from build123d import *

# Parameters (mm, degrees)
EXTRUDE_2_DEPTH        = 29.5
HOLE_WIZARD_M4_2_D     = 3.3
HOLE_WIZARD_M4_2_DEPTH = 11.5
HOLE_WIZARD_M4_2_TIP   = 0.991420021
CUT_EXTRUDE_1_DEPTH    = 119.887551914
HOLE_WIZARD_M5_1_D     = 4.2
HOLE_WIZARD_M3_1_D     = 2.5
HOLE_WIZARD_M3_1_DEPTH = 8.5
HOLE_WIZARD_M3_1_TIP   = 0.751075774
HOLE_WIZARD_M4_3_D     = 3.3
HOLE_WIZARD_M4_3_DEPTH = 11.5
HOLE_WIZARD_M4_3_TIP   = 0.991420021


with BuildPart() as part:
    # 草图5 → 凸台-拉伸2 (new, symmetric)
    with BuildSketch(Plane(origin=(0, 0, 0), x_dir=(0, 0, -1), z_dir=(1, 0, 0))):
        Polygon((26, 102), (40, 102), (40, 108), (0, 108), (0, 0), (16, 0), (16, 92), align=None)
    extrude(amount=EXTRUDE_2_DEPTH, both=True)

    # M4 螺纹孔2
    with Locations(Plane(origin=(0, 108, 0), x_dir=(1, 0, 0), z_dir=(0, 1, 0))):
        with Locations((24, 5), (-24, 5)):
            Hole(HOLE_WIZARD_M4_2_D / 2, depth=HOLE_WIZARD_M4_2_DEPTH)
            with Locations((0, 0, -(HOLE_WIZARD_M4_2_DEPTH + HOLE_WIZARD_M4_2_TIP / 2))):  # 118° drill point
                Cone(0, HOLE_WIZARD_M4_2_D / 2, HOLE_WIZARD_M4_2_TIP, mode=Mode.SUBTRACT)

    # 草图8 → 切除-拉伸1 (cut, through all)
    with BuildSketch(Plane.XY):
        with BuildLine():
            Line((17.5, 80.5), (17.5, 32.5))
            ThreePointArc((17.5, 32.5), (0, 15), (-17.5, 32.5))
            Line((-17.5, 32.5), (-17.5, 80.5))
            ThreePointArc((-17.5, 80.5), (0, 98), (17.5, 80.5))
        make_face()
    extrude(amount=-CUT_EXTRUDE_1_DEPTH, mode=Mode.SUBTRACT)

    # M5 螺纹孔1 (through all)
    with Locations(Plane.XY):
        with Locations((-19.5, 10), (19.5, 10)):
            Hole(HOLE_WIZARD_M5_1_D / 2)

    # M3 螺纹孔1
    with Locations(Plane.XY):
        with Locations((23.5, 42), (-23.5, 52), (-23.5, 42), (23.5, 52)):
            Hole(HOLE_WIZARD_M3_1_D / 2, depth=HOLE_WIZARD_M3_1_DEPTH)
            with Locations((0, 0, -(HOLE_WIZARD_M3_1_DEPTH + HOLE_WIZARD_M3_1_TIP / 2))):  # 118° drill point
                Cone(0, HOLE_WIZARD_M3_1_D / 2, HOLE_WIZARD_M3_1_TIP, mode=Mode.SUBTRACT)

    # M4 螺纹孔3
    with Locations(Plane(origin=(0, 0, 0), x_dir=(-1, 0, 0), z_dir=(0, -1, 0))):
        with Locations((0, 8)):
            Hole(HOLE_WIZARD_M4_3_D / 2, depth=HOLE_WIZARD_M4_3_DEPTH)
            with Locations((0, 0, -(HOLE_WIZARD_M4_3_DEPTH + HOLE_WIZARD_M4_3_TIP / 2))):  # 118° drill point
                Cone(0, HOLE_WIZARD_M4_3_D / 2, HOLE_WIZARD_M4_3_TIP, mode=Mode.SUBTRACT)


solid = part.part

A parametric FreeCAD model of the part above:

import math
import FreeCAD as App
import Part
import Sketcher
from FreeCAD import Vector
Q = App.Units.Quantity


def add_polygon(sketch, points):
    """Adds a closed chain of lines whose ends are joined by coincident constraints."""
    first, n = sketch.GeometryCount, len(points)
    for a, b in zip(points, points[1:] + points[:1]):
        sketch.addGeometry(Part.LineSegment(App.Vector(*a, 0), App.Vector(*b, 0)), False)
    for i in range(n):
        sketch.addConstraint(Sketcher.Constraint("Coincident", first + i, 2, first + (i + 1) % n, 1))

doc = App.newDocument("Part")
body = doc.addObject("PartDesign::Body", "Body")

# Sketch on YZ plane
sketch1 = body.newObject("Sketcher::SketchObject", "Sketch")
sketch1.AttachmentSupport = (doc.getObject("YZ_Plane"), [""])
sketch1.MapMode = "FlatFace"
add_polygon(sketch1, [(102, -26), (102, -40), (108, -40), (108, 0), (0, 0), (0, -16), (92, -16)])  # lines 0-6
sketch1.addConstraint(Sketcher.Constraint("Vertical", 0))
sketch1.addConstraint(Sketcher.Constraint("Horizontal", 1))
sketch1.addConstraint(Sketcher.Constraint("Vertical", 2))
sketch1.addConstraint(Sketcher.Constraint("Horizontal", 3))
sketch1.addConstraint(Sketcher.Constraint("Vertical", 4))
sketch1.addConstraint(Sketcher.Constraint("Horizontal", 5))
sketch1.addConstraint(Sketcher.Constraint("Coincident", 3, 2, -1, 1))
sketch1.addConstraint(Sketcher.Constraint("DistanceX", 1, 1, 1, 2, Q("6 mm")))
sketch1.addConstraint(Sketcher.Constraint("DistanceX", 3, 2, 3, 1, Q("108 mm")))
sketch1.addConstraint(Sketcher.Constraint("DistanceX", 5, 1, 5, 2, Q("92 mm")))
sketch1.addConstraint(Sketcher.Constraint("DistanceY", 0, 2, 0, 1, Q("14 mm")))
sketch1.addConstraint(Sketcher.Constraint("DistanceY", 2, 1, 2, 2, Q("40 mm")))
sketch1.addConstraint(Sketcher.Constraint("DistanceY", 4, 2, 4, 1, Q("16 mm")))
pad1 = body.newObject("PartDesign::Pad", "Pad")
pad1.Profile = sketch1
pad1.Length = 59
pad1.Midplane = True

# Sketch on XZ plane
sketch2 = body.newObject("Sketcher::SketchObject", "Sketch001")
sketch2.AttachmentSupport = (doc.getObject("XZ_Plane"), [""])
sketch2.MapMode = "FlatFace"
sketch2.AttachmentOffset = App.Placement(Vector(0, 0, -108), App.Rotation())
sketch2.addGeometry(Part.Circle(Vector(24, -5, 0), Vector(0, 0, 1), 1.65), False)
sketch2.addGeometry(Part.Circle(Vector(-24, -5, 0), Vector(0, 0, 1), 1.65), False)
sketch2.addConstraint(Sketcher.Constraint("Equal", 0, 1))
sketch2.addConstraint(Sketcher.Constraint("Symmetric", 0, 3, 1, 3, -2))
sketch2.addConstraint(Sketcher.Constraint("Diameter", 0, Q("3.3 mm")))
sketch2.addConstraint(Sketcher.Constraint("DistanceX", -1, 1, 0, 3, Q("24 mm")))
sketch2.addConstraint(Sketcher.Constraint("DistanceY", 0, 3, -1, 1, Q("5 mm")))
doc.recompute()
hole = body.newObject("PartDesign::Hole", "Hole")
hole.Profile = sketch2
hole.ThreadType = "None"
hole.Diameter = 3.3
hole.DepthType = "Dimension"
hole.Depth = 11.5
hole.DrillPoint = "Angled"
hole.DrillPointAngle = 118
hole.Reversed = True

# Sketch on XY plane
sketch3 = body.newObject("Sketcher::SketchObject", "Sketch002")
sketch3.AttachmentSupport = (doc.getObject("XY_Plane"), [""])
sketch3.MapMode = "FlatFace"
sketch3.addGeometry(Part.LineSegment(Vector(17.5, 32.5, 0), Vector(17.5, 80.5, 0)), False)
sketch3.addGeometry(Part.ArcOfCircle(Part.Circle(Vector(0, 80.5, 0), Vector(0, 0, 1), 17.5), math.radians(0), math.radians(180)), False)
sketch3.addGeometry(Part.LineSegment(Vector(-17.5, 80.5, 0), Vector(-17.5, 32.5, 0)), False)
sketch3.addGeometry(Part.ArcOfCircle(Part.Circle(Vector(0, 32.5, 0), Vector(0, 0, 1), 17.5), math.radians(180), math.radians(360)), False)
sketch3.addConstraint(Sketcher.Constraint("Tangent", 0, 2, 1, 1))
sketch3.addConstraint(Sketcher.Constraint("Tangent", 1, 2, 2, 1))
sketch3.addConstraint(Sketcher.Constraint("Tangent", 2, 2, 3, 1))
sketch3.addConstraint(Sketcher.Constraint("Tangent", 3, 2, 0, 1))
sketch3.addConstraint(Sketcher.Constraint("Vertical", 0))
sketch3.addConstraint(Sketcher.Constraint("Vertical", 2))
sketch3.addConstraint(Sketcher.Constraint("PointOnObject", 1, 3, -2))
sketch3.addConstraint(Sketcher.Constraint("Radius", 1, Q("17.5 mm")))
sketch3.addConstraint(Sketcher.Constraint("DistanceY", 0, 1, 0, 2, Q("48 mm")))
sketch3.addConstraint(Sketcher.Constraint("DistanceY", -1, 1, 1, 3, Q("80.5 mm")))
pocket1 = body.newObject("PartDesign::Pocket", "Pocket")
pocket1.Profile = sketch3
pocket1.Type = "ThroughAll"

# Sketch on XY plane
sketch4 = body.newObject("Sketcher::SketchObject", "Sketch003")
sketch4.AttachmentSupport = (doc.getObject("XY_Plane"), [""])
sketch4.MapMode = "FlatFace"
sketch4.addGeometry(Part.Circle(Vector(-19.5, 10, 0), Vector(0, 0, 1), 2.1), False)
sketch4.addGeometry(Part.Circle(Vector(19.5, 10, 0), Vector(0, 0, 1), 2.1), False)
sketch4.addConstraint(Sketcher.Constraint("Equal", 0, 1))
sketch4.addConstraint(Sketcher.Constraint("Symmetric", 0, 3, 1, 3, -2))
sketch4.addConstraint(Sketcher.Constraint("Diameter", 0, Q("4.2 mm")))
sketch4.addConstraint(Sketcher.Constraint("DistanceY", -1, 1, 0, 3, Q("10 mm")))
sketch4.addConstraint(Sketcher.Constraint("DistanceX", 0, 3, 1, 3, Q("39 mm")))
doc.recompute()
hole2 = body.newObject("PartDesign::Hole", "Hole001")
hole2.Profile = sketch4
hole2.ThreadType = "None"
hole2.Diameter = 4.2
hole2.DepthType = "ThroughAll"

# Sketch on XY plane
sketch5 = body.newObject("Sketcher::SketchObject", "Sketch004")
sketch5.AttachmentSupport = (doc.getObject("XY_Plane"), [""])
sketch5.MapMode = "FlatFace"
sketch5.addGeometry(Part.Circle(Vector(23.5, 42, 0), Vector(0, 0, 1), 1.25), False)
sketch5.addGeometry(Part.Circle(Vector(-23.5, 52, 0), Vector(0, 0, 1), 1.25), False)
sketch5.addGeometry(Part.Circle(Vector(-23.5, 42, 0), Vector(0, 0, 1), 1.25), False)
sketch5.addGeometry(Part.Circle(Vector(23.5, 52, 0), Vector(0, 0, 1), 1.25), False)
sketch5.addConstraint(Sketcher.Constraint("Equal", 0, 1))
sketch5.addConstraint(Sketcher.Constraint("Equal", 1, 2))
sketch5.addConstraint(Sketcher.Constraint("Equal", 2, 3))
sketch5.addConstraint(Sketcher.Constraint("Symmetric", 0, 3, 2, 3, -2))
sketch5.addConstraint(Sketcher.Constraint("Symmetric", 1, 3, 3, 3, -2))
sketch5.addConstraint(Sketcher.Constraint("Vertical", 1, 3, 2, 3))
sketch5.addConstraint(Sketcher.Constraint("Diameter", 0, Q("2.5 mm")))
sketch5.addConstraint(Sketcher.Constraint("DistanceY", -1, 1, 0, 3, Q("42 mm")))
sketch5.addConstraint(Sketcher.Constraint("DistanceY", -1, 1, 1, 3, Q("52 mm")))
sketch5.addConstraint(Sketcher.Constraint("DistanceX", 1, 3, 0, 3, Q("47 mm")))
doc.recompute()
hole3 = body.newObject("PartDesign::Hole", "Hole002")
hole3.Profile = sketch5
hole3.ThreadType = "None"
hole3.Diameter = 2.5
hole3.DepthType = "Dimension"
hole3.Depth = 8.5
hole3.DrillPoint = "Angled"
hole3.DrillPointAngle = 118

# Sketch on XZ plane
sketch6 = body.newObject("Sketcher::SketchObject", "Sketch005")
sketch6.AttachmentSupport = (doc.getObject("XZ_Plane"), [""])
sketch6.MapMode = "FlatFace"
sketch6.addGeometry(Part.Circle(Vector(0, -8, 0), Vector(0, 0, 1), 1.65), False)
sketch6.addConstraint(Sketcher.Constraint("PointOnObject", 0, 3, -2))
sketch6.addConstraint(Sketcher.Constraint("Diameter", 0, Q("3.3 mm")))
sketch6.addConstraint(Sketcher.Constraint("DistanceY", 0, 3, -1, 1, Q("8 mm")))
doc.recompute()
hole4 = body.newObject("PartDesign::Hole", "Hole003")
hole4.Profile = sketch6
hole4.ThreadType = "None"
hole4.Diameter = 3.3
hole4.DepthType = "Dimension"
hole4.Depth = 11.5
hole4.DrillPoint = "Angled"
hole4.DrillPointAngle = 118

doc.recompute()
